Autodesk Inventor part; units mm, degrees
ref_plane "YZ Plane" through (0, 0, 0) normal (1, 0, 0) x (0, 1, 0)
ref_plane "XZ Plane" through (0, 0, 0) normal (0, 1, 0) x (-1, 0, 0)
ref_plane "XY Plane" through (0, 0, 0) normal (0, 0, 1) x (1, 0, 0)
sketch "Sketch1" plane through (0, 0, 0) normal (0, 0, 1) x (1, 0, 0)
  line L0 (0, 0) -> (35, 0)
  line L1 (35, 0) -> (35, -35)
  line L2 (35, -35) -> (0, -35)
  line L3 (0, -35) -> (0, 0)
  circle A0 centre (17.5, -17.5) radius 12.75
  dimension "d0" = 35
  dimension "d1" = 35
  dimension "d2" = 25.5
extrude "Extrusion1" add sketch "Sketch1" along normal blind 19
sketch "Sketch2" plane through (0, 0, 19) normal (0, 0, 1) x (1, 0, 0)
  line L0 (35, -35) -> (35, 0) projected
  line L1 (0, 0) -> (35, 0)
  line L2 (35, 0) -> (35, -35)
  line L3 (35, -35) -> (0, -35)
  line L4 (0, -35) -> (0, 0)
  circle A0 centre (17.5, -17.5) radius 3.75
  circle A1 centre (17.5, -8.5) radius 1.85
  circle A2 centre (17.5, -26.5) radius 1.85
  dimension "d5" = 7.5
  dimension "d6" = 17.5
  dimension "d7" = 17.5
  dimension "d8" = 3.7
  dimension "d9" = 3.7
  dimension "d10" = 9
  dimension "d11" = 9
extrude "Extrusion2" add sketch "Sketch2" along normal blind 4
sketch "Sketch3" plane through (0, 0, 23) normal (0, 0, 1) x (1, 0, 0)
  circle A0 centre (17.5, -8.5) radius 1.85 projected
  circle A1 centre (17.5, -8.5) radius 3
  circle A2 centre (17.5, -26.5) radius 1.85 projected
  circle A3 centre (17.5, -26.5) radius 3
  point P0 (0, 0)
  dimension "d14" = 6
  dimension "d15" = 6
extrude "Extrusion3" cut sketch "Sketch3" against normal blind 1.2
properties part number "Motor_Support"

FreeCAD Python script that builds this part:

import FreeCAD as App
import Part
import Sketcher

V = App.Vector
Q = App.Units.Quantity

doc = App.newDocument("Part")
params = doc.addObject("Spreadsheet::Sheet", "Params")
for row, (alias, value) in enumerate([
    ("sketch1_diameter", "25.5 mm"),
    ("sketch1_width", "35 mm"),
    ("pad1_length", "19 mm"),
    ("sketch2_diameter", "3.7 mm"),
    ("sketch2_diameter2", "7.5 mm"),
    ("pad2_length", "4 mm"),
    ("sketch3_diameter", "6 mm"),
    ("sketch3_diameter2", "3.7 mm"),
    ("pocket1_length", "1.2 mm"),
], start=1):
    params.set(f"A{row}", alias)
    params.set(f"B{row}", "=" + value)
    params.setAlias(f"B{row}", alias)

body = doc.addObject("PartDesign::Body", "Body")

# Sketch on XY plane
sketch1 = doc.addObject("Sketcher::SketchObject", "Sketch")
body.addObject(sketch1)
sketch1.AttachmentSupport = (doc.XY_Plane, [""])
sketch1.MapMode = "FlatFace"
sketch1.addGeometry([
    Part.LineSegment(V(35, 0, 0), V(0, 0, 0)),  # 0
    Part.LineSegment(V(0, 0, 0), V(0, -35, 0)),  # 1
    Part.LineSegment(V(0, -35, 0), V(35, -35, 0)),  # 2
    Part.LineSegment(V(35, -35, 0), V(35, 0, 0)),  # 3
    Part.Circle(V(18, -18, 0), V(0, 0, 1), 13),  # 4
], False)
sketch1.addConstraint([
    Sketcher.Constraint("Coincident", 0, 2, 1, 1),
    Sketcher.Constraint("Coincident", 1, 2, 2, 1),
    Sketcher.Constraint("Coincident", 2, 2, 3, 1),
    Sketcher.Constraint("Coincident", 3, 2, 0, 1),
    Sketcher.Constraint("Horizontal", 0),
    Sketcher.Constraint("Vertical", 1),
    Sketcher.Constraint("Horizontal", 2),
    Sketcher.Constraint("Vertical", 3),
    Sketcher.Constraint("Coincident", 0, 2, -1, 1),
    Sketcher.Constraint("Equal", 2, 1),
    Sketcher.Constraint("Diameter", 4, Q("25.5 mm")),
    Sketcher.Constraint("DistanceX", 0, 2, 0, 1, Q("35 mm")),
    Sketcher.Constraint("DistanceX", -1, 1, 4, 3, Q("17.5 mm")),
    Sketcher.Constraint("DistanceY", 4, 3, -1, 1, Q("17.5 mm")),
])
sketch1.setExpression("Constraints[10]", "Params.sketch1_diameter")
sketch1.setExpression("Constraints[11]", "Params.sketch1_width")
pad1 = doc.addObject("PartDesign::Pad", "Pad")
body.addObject(pad1)
pad1.Profile = sketch1
pad1.setExpression("Length", "Params.pad1_length")

# Sketch on XY plane
sketch2 = doc.addObject("Sketcher::SketchObject", "Sketch001")
body.addObject(sketch2)
sketch2.AttachmentSupport = (doc.XY_Plane, [""])
sketch2.MapMode = "FlatFace"
sketch2.AttachmentOffset = App.Placement(V(0, 0, 19), App.Rotation())
sketch2.addGeometry([
    Part.LineSegment(V(0, -35, 0), V(35, -35, 0)),  # 0
    Part.LineSegment(V(35, -35, 0), V(35, 0, 0)),  # 1
    Part.LineSegment(V(35, 0, 0), V(0, 0, 0)),  # 2
    Part.LineSegment(V(0, 0, 0), V(0, -35, 0)),  # 3
    Part.Circle(V(17.5, -26.5, 0), V(0, 0, 1), 1.9),  # 4
    Part.Circle(V(17.5, -17.5, 0), V(0, 0, 1), 3.8),  # 5
    Part.Circle(V(17.5, -8.5, 0), V(0, 0, 1), 1.9),  # 6
], False)
sketch2.addConstraint([
    Sketcher.Constraint("Coincident", 0, 2, 1, 1),
    Sketcher.Constraint("Coincident", 1, 2, 2, 1),
    Sketcher.Constraint("Coincident", 2, 2, 3, 1),
    Sketcher.Constraint("Coincident", 3, 2, 0, 1),
    Sketcher.Constraint("Horizontal", 0),
    Sketcher.Constraint("Vertical", 1),
    Sketcher.Constraint("Horizontal", 2),
    Sketcher.Constraint("Vertical", 3),
    Sketcher.Constraint("Coincident", 2, 2, -1, 1),
    Sketcher.Constraint("Equal", 4, 6),
    Sketcher.Constraint("Vertical", 4, 3, 5, 3),
    Sketcher.Constraint("Vertical", 5, 3, 6, 3),
    Sketcher.Constraint("Equal", 2, 1),
    Sketcher.Constraint("Diameter", 4, Q("3.7 mm")),
    Sketcher.Constraint("Diameter", 5, Q("7.5 mm")),
    Sketcher.Constraint("DistanceY", 4, 3, 5, 3, Q("9 mm")),
    Sketcher.Constraint("DistanceY", 5, 3, 6, 3, Q("9 mm")),
    Sketcher.Constraint("DistanceX", -1, 1, 4, 3, Q("17.5 mm")),
    Sketcher.Constraint("DistanceY", 5, 3, -1, 1, Q("17.5 mm")),
    Sketcher.Constraint("DistanceX", 4, 3, 0, 2, Q("17.5 mm")),
])
sketch2.setExpression("Constraints[13]", "Params.sketch2_diameter")
sketch2.setExpression("Constraints[14]", "Params.sketch2_diameter2")
pad2 = doc.addObject("PartDesign::Pad", "Pad001")
body.addObject(pad2)
pad2.Profile = sketch2
pad2.setExpression("Length", "Params.pad2_length")

# Sketch on XY plane
sketch3 = doc.addObject("Sketcher::SketchObject", "Sketch002")
body.addObject(sketch3)
sketch3.AttachmentSupport = (doc.XY_Plane, [""])
sketch3.MapMode = "FlatFace"
sketch3.AttachmentOffset = App.Placement(V(0, 0, 23), App.Rotation())
sketch3.addGeometry([
    Part.Circle(V(17.5, -8.5, 0), V(0, 0, 1), 3),
    Part.Circle(V(17.5, -8.5, 0), V(0, 0, 1), 1.9),
    Part.Circle(V(17.5, -26.5, 0), V(0, 0, 1), 3),
    Part.Circle(V(17.5, -26.5, 0), V(0, 0, 1), 1.9),
], False)
sketch3.addConstraint([
    Sketcher.Constraint("Coincident", 1, 3, 0, 3),
    Sketcher.Constraint("Coincident", 3, 3, 2, 3),
    Sketcher.Constraint("Equal", 0, 2),
    Sketcher.Constraint("Equal", 1, 3),
    Sketcher.Constraint("Vertical", 1, 3, 2, 3),
    Sketcher.Constraint("Diameter", 0, Q("6 mm")),
    Sketcher.Constraint("Diameter", 1, Q("3.7 mm")),
    Sketcher.Constraint("DistanceY", 2, 3, 0, 3, Q("18 mm")),
    Sketcher.Constraint("DistanceX", -1, 1, 0, 3, Q("17.5 mm")),
    Sketcher.Constraint("DistanceY", 0, 3, -1, 1, Q("8.5 mm")),
])
sketch3.setExpression("Constraints[5]", "Params.sketch3_diameter")
sketch3.setExpression("Constraints[6]", "Params.sketch3_diameter2")
pocket1 = doc.addObject("PartDesign::Pocket", "Pocket")
body.addObject(pocket1)
pocket1.Profile = sketch3
pocket1.setExpression("Length", "Params.pocket1_length")

doc.recompute()
